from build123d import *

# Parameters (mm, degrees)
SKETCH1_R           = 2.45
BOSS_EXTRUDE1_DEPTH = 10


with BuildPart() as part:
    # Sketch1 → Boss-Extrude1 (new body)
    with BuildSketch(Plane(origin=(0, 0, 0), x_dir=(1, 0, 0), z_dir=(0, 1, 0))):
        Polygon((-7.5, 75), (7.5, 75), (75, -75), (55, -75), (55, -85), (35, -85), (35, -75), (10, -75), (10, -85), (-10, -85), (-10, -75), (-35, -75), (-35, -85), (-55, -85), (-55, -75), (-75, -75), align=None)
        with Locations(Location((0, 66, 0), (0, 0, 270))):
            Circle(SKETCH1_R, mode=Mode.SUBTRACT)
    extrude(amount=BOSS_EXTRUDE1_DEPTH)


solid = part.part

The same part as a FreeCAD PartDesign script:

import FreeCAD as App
import Part
import Sketcher

V = App.Vector
Q = App.Units.Quantity


def add_polygon(sketch, points):
    """Adds a closed chain of lines whose ends are joined by coincident constraints."""
    first, n = sketch.GeometryCount, len(points)
    for a, b in zip(points, points[1:] + points[:1]):
        sketch.addGeometry(Part.LineSegment(App.Vector(*a, 0), App.Vector(*b, 0)), False)
    for i in range(n):
        sketch.addConstraint(Sketcher.Constraint("Coincident", first + i, 2, first + (i + 1) % n, 1))

doc = App.newDocument("Part")
body = doc.addObject("PartDesign::Body", "Body")

# Sketch on XZ plane
sketch1 = body.newObject("Sketcher::SketchObject", "Sketch")
sketch1.AttachmentSupport = (doc.getObject("XZ_Plane"), [""])
sketch1.MapMode = "FlatFace"
add_polygon(sketch1, [(7.5, -75), (-7.5, -75), (-75, 75), (-55, 75), (-55, 85), (-35, 85), (-35, 75), (-10, 75), (-10, 85), (10, 85), (10, 75), (35, 75), (35, 85), (55, 85), (55, 75), (75, 75)])  # lines 0-15
sketch1.addGeometry(Part.Circle(V(0, -66, 0), V(0, 0, 1), 2.5), False)  # 16
sketch1.addConstraint(Sketcher.Constraint("Horizontal", 0))
sketch1.addConstraint(Sketcher.Constraint("Horizontal", 2))
sketch1.addConstraint(Sketcher.Constraint("Vertical", 3))
sketch1.addConstraint(Sketcher.Constraint("Horizontal", 4))
sketch1.addConstraint(Sketcher.Constraint("Vertical", 5))
sketch1.addConstraint(Sketcher.Constraint("Horizontal", 6))
sketch1.addConstraint(Sketcher.Constraint("Vertical", 7))
sketch1.addConstraint(Sketcher.Constraint("Horizontal", 8))
sketch1.addConstraint(Sketcher.Constraint("Vertical", 9))
sketch1.addConstraint(Sketcher.Constraint("Horizontal", 10))
sketch1.addConstraint(Sketcher.Constraint("Vertical", 11))
sketch1.addConstraint(Sketcher.Constraint("Horizontal", 12))
sketch1.addConstraint(Sketcher.Constraint("Vertical", 13))
sketch1.addConstraint(Sketcher.Constraint("Horizontal", 14))
sketch1.addConstraint(Sketcher.Constraint("Symmetric", 6, 2, 9, 2, -2))
sketch1.addConstraint(Sketcher.Constraint("Symmetric", 4, 2, 11, 2, -2))
sketch1.addConstraint(Sketcher.Constraint("Symmetric", 2, 2, 13, 2, -2))
sketch1.addConstraint(Sketcher.Constraint("PointOnObject", 16, 3, -2))
sketch1.addConstraint(Sketcher.Constraint("Horizontal", 2, 2, 5, 2))
sketch1.addConstraint(Sketcher.Constraint("Horizontal", 4, 2, 7, 2))
sketch1.addConstraint(Sketcher.Constraint("Equal", 2, 4))
sketch1.addConstraint(Sketcher.Constraint("Equal", 4, 8))
sketch1.addConstraint(Sketcher.Constraint("Equal", 12, 14))
sketch1.addConstraint(Sketcher.Constraint("Equal", 1, 15))
sketch1.addConstraint(Sketcher.Constraint("Diameter", 16, Q("4.9 mm")))
sketch1.addConstraint(Sketcher.Constraint("DistanceX", 0, 2, 0, 1, Q("15 mm")))
sketch1.addConstraint(Sketcher.Constraint("DistanceX", 2, 1, 2, 2, Q("20 mm")))
sketch1.addConstraint(Sketcher.Constraint("DistanceX", 6, 1, 6, 2, Q("25 mm")))
sketch1.addConstraint(Sketcher.Constraint("DistanceY", 3, 1, 3, 2, Q("10 mm")))
sketch1.addConstraint(Sketcher.Constraint("DistanceY", 16, 3, -1, 1, Q("66 mm")))
sketch1.addConstraint(Sketcher.Constraint("DistanceY", 0, 2, -1, 1, Q("75 mm")))
sketch1.addConstraint(Sketcher.Constraint("DistanceY", -1, 1, 1, 2, Q("75 mm")))
pad1 = body.newObject("PartDesign::Pad", "Pad")
pad1.Profile = sketch1
pad1.Length = 10
pad1.Reversed = True

doc.recompute()
